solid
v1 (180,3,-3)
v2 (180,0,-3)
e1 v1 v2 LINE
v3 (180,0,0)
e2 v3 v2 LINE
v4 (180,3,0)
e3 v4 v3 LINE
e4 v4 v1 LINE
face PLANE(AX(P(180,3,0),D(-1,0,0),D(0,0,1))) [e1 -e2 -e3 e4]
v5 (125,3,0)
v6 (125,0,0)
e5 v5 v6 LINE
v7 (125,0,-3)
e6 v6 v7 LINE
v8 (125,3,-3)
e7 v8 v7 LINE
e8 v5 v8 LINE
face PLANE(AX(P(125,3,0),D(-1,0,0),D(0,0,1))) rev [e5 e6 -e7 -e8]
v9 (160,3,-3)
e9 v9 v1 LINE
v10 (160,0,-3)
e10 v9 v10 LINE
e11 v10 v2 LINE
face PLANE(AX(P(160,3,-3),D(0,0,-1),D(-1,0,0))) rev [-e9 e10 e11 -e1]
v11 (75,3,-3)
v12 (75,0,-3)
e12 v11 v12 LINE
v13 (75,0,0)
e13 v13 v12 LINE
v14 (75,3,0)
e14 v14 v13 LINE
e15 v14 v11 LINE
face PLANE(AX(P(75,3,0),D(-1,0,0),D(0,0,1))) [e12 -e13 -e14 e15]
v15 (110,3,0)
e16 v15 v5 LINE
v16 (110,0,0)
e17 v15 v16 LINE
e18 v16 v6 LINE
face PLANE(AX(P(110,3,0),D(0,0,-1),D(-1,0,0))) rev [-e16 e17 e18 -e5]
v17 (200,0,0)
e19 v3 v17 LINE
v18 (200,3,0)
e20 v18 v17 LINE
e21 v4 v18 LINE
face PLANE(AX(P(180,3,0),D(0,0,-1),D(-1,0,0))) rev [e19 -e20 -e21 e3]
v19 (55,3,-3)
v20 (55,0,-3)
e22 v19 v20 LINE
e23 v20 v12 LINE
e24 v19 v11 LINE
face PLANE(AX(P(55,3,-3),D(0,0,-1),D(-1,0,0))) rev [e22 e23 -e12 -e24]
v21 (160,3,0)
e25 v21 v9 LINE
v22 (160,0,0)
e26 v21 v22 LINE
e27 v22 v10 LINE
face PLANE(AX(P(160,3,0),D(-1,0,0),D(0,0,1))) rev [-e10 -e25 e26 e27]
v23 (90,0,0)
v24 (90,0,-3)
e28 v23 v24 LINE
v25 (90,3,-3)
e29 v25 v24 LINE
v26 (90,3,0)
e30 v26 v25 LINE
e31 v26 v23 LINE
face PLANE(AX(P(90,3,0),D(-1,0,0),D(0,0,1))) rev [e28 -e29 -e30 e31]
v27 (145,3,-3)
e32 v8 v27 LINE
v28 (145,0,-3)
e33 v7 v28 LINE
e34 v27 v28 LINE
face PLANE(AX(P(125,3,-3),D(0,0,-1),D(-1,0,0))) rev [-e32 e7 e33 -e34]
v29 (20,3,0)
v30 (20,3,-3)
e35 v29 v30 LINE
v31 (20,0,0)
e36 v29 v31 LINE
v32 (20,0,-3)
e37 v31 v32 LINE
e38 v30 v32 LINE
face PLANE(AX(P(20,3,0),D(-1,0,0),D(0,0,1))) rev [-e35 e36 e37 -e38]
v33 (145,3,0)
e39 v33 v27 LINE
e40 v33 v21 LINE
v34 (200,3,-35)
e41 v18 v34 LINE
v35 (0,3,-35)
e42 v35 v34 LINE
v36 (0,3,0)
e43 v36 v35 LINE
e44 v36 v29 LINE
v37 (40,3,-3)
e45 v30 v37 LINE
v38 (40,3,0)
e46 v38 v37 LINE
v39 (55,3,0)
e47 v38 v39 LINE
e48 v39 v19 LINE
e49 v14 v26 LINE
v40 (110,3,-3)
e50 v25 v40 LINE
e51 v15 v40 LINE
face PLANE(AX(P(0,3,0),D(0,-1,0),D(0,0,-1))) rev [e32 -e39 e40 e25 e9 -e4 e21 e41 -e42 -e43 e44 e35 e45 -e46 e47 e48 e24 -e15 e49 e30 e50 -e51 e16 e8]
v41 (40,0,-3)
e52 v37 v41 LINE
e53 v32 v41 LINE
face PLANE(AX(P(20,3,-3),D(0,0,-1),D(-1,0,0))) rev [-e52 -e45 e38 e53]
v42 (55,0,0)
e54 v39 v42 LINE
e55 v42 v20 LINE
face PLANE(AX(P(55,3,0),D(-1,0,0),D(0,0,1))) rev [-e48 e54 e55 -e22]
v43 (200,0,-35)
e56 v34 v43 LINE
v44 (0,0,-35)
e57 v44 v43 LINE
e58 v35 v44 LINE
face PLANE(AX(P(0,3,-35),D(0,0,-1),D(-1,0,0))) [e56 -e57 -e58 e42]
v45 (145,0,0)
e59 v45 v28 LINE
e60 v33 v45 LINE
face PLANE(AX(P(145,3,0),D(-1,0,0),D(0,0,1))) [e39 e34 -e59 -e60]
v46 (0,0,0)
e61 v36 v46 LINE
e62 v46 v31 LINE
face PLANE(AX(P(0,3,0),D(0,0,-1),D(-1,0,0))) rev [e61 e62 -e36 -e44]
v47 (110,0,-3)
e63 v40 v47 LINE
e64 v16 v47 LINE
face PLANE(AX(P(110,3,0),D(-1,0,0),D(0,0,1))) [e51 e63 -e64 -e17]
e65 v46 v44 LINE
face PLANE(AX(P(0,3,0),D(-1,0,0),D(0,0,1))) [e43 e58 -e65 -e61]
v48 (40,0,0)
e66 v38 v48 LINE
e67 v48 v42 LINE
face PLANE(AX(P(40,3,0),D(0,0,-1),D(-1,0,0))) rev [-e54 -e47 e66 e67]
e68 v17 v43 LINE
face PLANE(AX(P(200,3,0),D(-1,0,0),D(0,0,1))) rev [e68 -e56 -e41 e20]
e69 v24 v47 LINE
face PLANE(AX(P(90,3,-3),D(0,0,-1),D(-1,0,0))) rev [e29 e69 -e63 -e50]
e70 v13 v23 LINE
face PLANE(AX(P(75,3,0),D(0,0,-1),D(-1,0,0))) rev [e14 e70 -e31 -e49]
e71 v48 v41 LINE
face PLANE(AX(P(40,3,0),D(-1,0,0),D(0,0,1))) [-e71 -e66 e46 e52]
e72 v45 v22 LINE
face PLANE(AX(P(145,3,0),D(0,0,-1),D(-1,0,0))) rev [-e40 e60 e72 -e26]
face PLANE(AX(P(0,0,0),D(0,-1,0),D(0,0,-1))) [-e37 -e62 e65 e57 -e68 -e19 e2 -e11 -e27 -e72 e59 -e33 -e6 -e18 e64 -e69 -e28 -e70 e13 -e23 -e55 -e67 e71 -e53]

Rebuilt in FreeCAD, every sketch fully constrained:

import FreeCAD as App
import Part
import Sketcher

V = App.Vector

doc = App.newDocument("Part")
params = doc.addObject("Spreadsheet::Sheet", "Params")
for row, (alias, value) in enumerate([
    ("sketch1_width", "15 mm"),
    ("sketch1_width2", "20 mm"),
    ("sketch1_height", "3 mm"),
    ("sketch1_height2", "35 mm"),
    ("pad1_length", "3 mm"),
], start=1):
    params.set(f"A{row}", alias)
    params.set(f"B{row}", "=" + value)
    params.setAlias(f"B{row}", alias)

body = doc.addObject("PartDesign::Body", "Body")

sketch1 = body.newObject("Sketcher::SketchObject", "Sketch")
sketch1.AttachmentSupport = (doc.getObject("XZ_Plane"), [""])
sketch1.MapMode = "FlatFace"
sketch1.addGeometry(Part.LineSegment(V(40, 0, 0), V(55, 0, 0)), False)
sketch1.addGeometry(Part.LineSegment(V(55, 0, 0), V(55, -3, 0)), False)
sketch1.addGeometry(Part.LineSegment(V(55, -3, 0), V(75, -3, 0)), False)
sketch1.addGeometry(Part.LineSegment(V(75, -3, 0), V(75, 0, 0)), False)
sketch1.addGeometry(Part.LineSegment(V(75, 0, 0), V(90, 0, 0)), False)
sketch1.addGeometry(Part.LineSegment(V(90, 0, 0), V(90, -3, 0)), False)
sketch1.addGeometry(Part.LineSegment(V(90, -3, 0), V(110, -3, 0)), False)
sketch1.addGeometry(Part.LineSegment(V(110, -3, 0), V(110, 0, 0)), False)
sketch1.addGeometry(Part.LineSegment(V(110, 0, 0), V(125, 0, 0)), False)
sketch1.addGeometry(Part.LineSegment(V(125, 0, 0), V(125, -3, 0)), False)
sketch1.addGeometry(Part.LineSegment(V(125, -3, 0), V(145, -3, 0)), False)
sketch1.addGeometry(Part.LineSegment(V(145, -3, 0), V(145, 0, 0)), False)
sketch1.addGeometry(Part.LineSegment(V(145, 0, 0), V(160, 0, 0)), False)
sketch1.addGeometry(Part.LineSegment(V(160, 0, 0), V(160, -3, 0)), False)
sketch1.addGeometry(Part.LineSegment(V(160, -3, 0), V(180, -3, 0)), False)
sketch1.addGeometry(Part.LineSegment(V(180, -3, 0), V(180, 0, 0)), False)
sketch1.addGeometry(Part.LineSegment(V(180, 0, 0), V(200, 0, 0)), False)
sketch1.addGeometry(Part.LineSegment(V(200, 0, 0), V(200, -35, 0)), False)
sketch1.addGeometry(Part.LineSegment(V(200, -35, 0), V(0, -35, 0)), False)
sketch1.addGeometry(Part.LineSegment(V(0, -35, 0), V(0, 0, 0)), False)
sketch1.addGeometry(Part.LineSegment(V(0, 0, 0), V(20, 0, 0)), False)
sketch1.addGeometry(Part.LineSegment(V(20, 0, 0), V(20, -3, 0)), False)
sketch1.addGeometry(Part.LineSegment(V(20, -3, 0), V(40, -3, 0)), False)
sketch1.addGeometry(Part.LineSegment(V(40, -3, 0), V(40, 0, 0)), False)
sketch1.addConstraint(Sketcher.Constraint("Coincident", 0, 2, 1, 1))
sketch1.addConstraint(Sketcher.Constraint("Coincident", 1, 2, 2, 1))
sketch1.addConstraint(Sketcher.Constraint("Coincident", 2, 2, 3, 1))
sketch1.addConstraint(Sketcher.Constraint("Coincident", 3, 2, 4, 1))
sketch1.addConstraint(Sketcher.Constraint("Coincident", 4, 2, 5, 1))
sketch1.addConstraint(Sketcher.Constraint("Coincident", 5, 2, 6, 1))
sketch1.addConstraint(Sketcher.Constraint("Coincident", 6, 2, 7, 1))
sketch1.addConstraint(Sketcher.Constraint("Coincident", 7, 2, 8, 1))
sketch1.addConstraint(Sketcher.Constraint("Coincident", 8, 2, 9, 1))
sketch1.addConstraint(Sketcher.Constraint("Coincident", 9, 2, 10, 1))
sketch1.addConstraint(Sketcher.Constraint("Coincident", 10, 2, 11, 1))
sketch1.addConstraint(Sketcher.Constraint("Coincident", 11, 2, 12, 1))
sketch1.addConstraint(Sketcher.Constraint("Coincident", 12, 2, 13, 1))
sketch1.addConstraint(Sketcher.Constraint("Coincident", 13, 2, 14, 1))
sketch1.addConstraint(Sketcher.Constraint("Coincident", 14, 2, 15, 1))
sketch1.addConstraint(Sketcher.Constraint("Coincident", 15, 2, 16, 1))
sketch1.addConstraint(Sketcher.Constraint("Coincident", 16, 2, 17, 1))
sketch1.addConstraint(Sketcher.Constraint("Coincident", 17, 2, 18, 1))
sketch1.addConstraint(Sketcher.Constraint("Coincident", 18, 2, 19, 1))
sketch1.addConstraint(Sketcher.Constraint("Coincident", 19, 2, 20, 1))
sketch1.addConstraint(Sketcher.Constraint("Coincident", 20, 2, 21, 1))
sketch1.addConstraint(Sketcher.Constraint("Coincident", 21, 2, 22, 1))
sketch1.addConstraint(Sketcher.Constraint("Coincident", 22, 2, 23, 1))
sketch1.addConstraint(Sketcher.Constraint("Coincident", 23, 2, 0, 1))
sketch1.addConstraint(Sketcher.Constraint("Horizontal", 0))
sketch1.addConstraint(Sketcher.Constraint("Vertical", 1))
sketch1.addConstraint(Sketcher.Constraint("Horizontal", 2))
sketch1.addConstraint(Sketcher.Constraint("Vertical", 3))
sketch1.addConstraint(Sketcher.Constraint("Horizontal", 4))
sketch1.addConstraint(Sketcher.Constraint("Vertical", 5))
sketch1.addConstraint(Sketcher.Constraint("Horizontal", 6))
sketch1.addConstraint(Sketcher.Constraint("Vertical", 7))
sketch1.addConstraint(Sketcher.Constraint("Horizontal", 8))
sketch1.addConstraint(Sketcher.Constraint("Vertical", 9))
sketch1.addConstraint(Sketcher.Constraint("Horizontal", 10))
sketch1.addConstraint(Sketcher.Constraint("Vertical", 11))
sketch1.addConstraint(Sketcher.Constraint("Horizontal", 12))
sketch1.addConstraint(Sketcher.Constraint("Vertical", 13))
sketch1.addConstraint(Sketcher.Constraint("Horizontal", 14))
sketch1.addConstraint(Sketcher.Constraint("Vertical", 15))
sketch1.addConstraint(Sketcher.Constraint("Horizontal", 16))
sketch1.addConstraint(Sketcher.Constraint("Vertical", 17))
sketch1.addConstraint(Sketcher.Constraint("Horizontal", 18))
sketch1.addConstraint(Sketcher.Constraint("Vertical", 19))
sketch1.addConstraint(Sketcher.Constraint("Horizontal", 20))
sketch1.addConstraint(Sketcher.Constraint("Vertical", 21))
sketch1.addConstraint(Sketcher.Constraint("Horizontal", 22))
sketch1.addConstraint(Sketcher.Constraint("Vertical", 23))
sketch1.addConstraint(Sketcher.Constraint("Coincident", 19, 2, -1, 1))
sketch1.addConstraint(Sketcher.Constraint("PointOnObject", 0, 2, -1))
sketch1.addConstraint(Sketcher.Constraint("PointOnObject", 3, 2, -1))
sketch1.addConstraint(Sketcher.Constraint("PointOnObject", 7, 2, -1))
sketch1.addConstraint(Sketcher.Constraint("PointOnObject", 11, 2, -1))
sketch1.addConstraint(Sketcher.Constraint("PointOnObject", 15, 2, -1))
sketch1.addConstraint(Sketcher.Constraint("Horizontal", 2, 2, 5, 2))
sketch1.addConstraint(Sketcher.Constraint("Horizontal", 6, 2, 9, 2))
sketch1.addConstraint(Sketcher.Constraint("Horizontal", 10, 2, 13, 2))
sketch1.addConstraint(Sketcher.Constraint("Horizontal", 14, 2, 21, 2))
sketch1.addConstraint(Sketcher.Constraint("Equal", 0, 4))
sketch1.addConstraint(Sketcher.Constraint("Equal", 2, 6))
sketch1.addConstraint(Sketcher.Constraint("Equal", 4, 8))
sketch1.addConstraint(Sketcher.Constraint("Equal", 6, 10))
sketch1.addConstraint(Sketcher.Constraint("Equal", 8, 12))
sketch1.addConstraint(Sketcher.Constraint("Equal", 10, 14))
sketch1.addConstraint(Sketcher.Constraint("Equal", 14, 16))
sketch1.addConstraint(Sketcher.Constraint("Equal", 16, 20))
sketch1.addConstraint(Sketcher.Constraint("Equal", 20, 22))
sketch1.addConstraint(Sketcher.Constraint("DistanceX", 0, 1, 0, 2, 15.0))
sketch1.addConstraint(Sketcher.Constraint("DistanceX", 2, 1, 2, 2, 20.0))
sketch1.addConstraint(Sketcher.Constraint("DistanceY", 1, 2, 1, 1, 3.0))
sketch1.addConstraint(Sketcher.Constraint("DistanceY", 17, 2, 17, 1, 35.0))
sketch1.setExpression("Constraints[67]", "Params.sketch1_width")
sketch1.setExpression("Constraints[68]", "Params.sketch1_width2")
sketch1.setExpression("Constraints[69]", "Params.sketch1_height")
sketch1.setExpression("Constraints[70]", "Params.sketch1_height2")
pad1 = body.newObject("PartDesign::Pad", "Pad")
pad1.Profile = sketch1
pad1.setExpression("Length", "Params.pad1_length")
pad1.Reversed = True

doc.recompute()
